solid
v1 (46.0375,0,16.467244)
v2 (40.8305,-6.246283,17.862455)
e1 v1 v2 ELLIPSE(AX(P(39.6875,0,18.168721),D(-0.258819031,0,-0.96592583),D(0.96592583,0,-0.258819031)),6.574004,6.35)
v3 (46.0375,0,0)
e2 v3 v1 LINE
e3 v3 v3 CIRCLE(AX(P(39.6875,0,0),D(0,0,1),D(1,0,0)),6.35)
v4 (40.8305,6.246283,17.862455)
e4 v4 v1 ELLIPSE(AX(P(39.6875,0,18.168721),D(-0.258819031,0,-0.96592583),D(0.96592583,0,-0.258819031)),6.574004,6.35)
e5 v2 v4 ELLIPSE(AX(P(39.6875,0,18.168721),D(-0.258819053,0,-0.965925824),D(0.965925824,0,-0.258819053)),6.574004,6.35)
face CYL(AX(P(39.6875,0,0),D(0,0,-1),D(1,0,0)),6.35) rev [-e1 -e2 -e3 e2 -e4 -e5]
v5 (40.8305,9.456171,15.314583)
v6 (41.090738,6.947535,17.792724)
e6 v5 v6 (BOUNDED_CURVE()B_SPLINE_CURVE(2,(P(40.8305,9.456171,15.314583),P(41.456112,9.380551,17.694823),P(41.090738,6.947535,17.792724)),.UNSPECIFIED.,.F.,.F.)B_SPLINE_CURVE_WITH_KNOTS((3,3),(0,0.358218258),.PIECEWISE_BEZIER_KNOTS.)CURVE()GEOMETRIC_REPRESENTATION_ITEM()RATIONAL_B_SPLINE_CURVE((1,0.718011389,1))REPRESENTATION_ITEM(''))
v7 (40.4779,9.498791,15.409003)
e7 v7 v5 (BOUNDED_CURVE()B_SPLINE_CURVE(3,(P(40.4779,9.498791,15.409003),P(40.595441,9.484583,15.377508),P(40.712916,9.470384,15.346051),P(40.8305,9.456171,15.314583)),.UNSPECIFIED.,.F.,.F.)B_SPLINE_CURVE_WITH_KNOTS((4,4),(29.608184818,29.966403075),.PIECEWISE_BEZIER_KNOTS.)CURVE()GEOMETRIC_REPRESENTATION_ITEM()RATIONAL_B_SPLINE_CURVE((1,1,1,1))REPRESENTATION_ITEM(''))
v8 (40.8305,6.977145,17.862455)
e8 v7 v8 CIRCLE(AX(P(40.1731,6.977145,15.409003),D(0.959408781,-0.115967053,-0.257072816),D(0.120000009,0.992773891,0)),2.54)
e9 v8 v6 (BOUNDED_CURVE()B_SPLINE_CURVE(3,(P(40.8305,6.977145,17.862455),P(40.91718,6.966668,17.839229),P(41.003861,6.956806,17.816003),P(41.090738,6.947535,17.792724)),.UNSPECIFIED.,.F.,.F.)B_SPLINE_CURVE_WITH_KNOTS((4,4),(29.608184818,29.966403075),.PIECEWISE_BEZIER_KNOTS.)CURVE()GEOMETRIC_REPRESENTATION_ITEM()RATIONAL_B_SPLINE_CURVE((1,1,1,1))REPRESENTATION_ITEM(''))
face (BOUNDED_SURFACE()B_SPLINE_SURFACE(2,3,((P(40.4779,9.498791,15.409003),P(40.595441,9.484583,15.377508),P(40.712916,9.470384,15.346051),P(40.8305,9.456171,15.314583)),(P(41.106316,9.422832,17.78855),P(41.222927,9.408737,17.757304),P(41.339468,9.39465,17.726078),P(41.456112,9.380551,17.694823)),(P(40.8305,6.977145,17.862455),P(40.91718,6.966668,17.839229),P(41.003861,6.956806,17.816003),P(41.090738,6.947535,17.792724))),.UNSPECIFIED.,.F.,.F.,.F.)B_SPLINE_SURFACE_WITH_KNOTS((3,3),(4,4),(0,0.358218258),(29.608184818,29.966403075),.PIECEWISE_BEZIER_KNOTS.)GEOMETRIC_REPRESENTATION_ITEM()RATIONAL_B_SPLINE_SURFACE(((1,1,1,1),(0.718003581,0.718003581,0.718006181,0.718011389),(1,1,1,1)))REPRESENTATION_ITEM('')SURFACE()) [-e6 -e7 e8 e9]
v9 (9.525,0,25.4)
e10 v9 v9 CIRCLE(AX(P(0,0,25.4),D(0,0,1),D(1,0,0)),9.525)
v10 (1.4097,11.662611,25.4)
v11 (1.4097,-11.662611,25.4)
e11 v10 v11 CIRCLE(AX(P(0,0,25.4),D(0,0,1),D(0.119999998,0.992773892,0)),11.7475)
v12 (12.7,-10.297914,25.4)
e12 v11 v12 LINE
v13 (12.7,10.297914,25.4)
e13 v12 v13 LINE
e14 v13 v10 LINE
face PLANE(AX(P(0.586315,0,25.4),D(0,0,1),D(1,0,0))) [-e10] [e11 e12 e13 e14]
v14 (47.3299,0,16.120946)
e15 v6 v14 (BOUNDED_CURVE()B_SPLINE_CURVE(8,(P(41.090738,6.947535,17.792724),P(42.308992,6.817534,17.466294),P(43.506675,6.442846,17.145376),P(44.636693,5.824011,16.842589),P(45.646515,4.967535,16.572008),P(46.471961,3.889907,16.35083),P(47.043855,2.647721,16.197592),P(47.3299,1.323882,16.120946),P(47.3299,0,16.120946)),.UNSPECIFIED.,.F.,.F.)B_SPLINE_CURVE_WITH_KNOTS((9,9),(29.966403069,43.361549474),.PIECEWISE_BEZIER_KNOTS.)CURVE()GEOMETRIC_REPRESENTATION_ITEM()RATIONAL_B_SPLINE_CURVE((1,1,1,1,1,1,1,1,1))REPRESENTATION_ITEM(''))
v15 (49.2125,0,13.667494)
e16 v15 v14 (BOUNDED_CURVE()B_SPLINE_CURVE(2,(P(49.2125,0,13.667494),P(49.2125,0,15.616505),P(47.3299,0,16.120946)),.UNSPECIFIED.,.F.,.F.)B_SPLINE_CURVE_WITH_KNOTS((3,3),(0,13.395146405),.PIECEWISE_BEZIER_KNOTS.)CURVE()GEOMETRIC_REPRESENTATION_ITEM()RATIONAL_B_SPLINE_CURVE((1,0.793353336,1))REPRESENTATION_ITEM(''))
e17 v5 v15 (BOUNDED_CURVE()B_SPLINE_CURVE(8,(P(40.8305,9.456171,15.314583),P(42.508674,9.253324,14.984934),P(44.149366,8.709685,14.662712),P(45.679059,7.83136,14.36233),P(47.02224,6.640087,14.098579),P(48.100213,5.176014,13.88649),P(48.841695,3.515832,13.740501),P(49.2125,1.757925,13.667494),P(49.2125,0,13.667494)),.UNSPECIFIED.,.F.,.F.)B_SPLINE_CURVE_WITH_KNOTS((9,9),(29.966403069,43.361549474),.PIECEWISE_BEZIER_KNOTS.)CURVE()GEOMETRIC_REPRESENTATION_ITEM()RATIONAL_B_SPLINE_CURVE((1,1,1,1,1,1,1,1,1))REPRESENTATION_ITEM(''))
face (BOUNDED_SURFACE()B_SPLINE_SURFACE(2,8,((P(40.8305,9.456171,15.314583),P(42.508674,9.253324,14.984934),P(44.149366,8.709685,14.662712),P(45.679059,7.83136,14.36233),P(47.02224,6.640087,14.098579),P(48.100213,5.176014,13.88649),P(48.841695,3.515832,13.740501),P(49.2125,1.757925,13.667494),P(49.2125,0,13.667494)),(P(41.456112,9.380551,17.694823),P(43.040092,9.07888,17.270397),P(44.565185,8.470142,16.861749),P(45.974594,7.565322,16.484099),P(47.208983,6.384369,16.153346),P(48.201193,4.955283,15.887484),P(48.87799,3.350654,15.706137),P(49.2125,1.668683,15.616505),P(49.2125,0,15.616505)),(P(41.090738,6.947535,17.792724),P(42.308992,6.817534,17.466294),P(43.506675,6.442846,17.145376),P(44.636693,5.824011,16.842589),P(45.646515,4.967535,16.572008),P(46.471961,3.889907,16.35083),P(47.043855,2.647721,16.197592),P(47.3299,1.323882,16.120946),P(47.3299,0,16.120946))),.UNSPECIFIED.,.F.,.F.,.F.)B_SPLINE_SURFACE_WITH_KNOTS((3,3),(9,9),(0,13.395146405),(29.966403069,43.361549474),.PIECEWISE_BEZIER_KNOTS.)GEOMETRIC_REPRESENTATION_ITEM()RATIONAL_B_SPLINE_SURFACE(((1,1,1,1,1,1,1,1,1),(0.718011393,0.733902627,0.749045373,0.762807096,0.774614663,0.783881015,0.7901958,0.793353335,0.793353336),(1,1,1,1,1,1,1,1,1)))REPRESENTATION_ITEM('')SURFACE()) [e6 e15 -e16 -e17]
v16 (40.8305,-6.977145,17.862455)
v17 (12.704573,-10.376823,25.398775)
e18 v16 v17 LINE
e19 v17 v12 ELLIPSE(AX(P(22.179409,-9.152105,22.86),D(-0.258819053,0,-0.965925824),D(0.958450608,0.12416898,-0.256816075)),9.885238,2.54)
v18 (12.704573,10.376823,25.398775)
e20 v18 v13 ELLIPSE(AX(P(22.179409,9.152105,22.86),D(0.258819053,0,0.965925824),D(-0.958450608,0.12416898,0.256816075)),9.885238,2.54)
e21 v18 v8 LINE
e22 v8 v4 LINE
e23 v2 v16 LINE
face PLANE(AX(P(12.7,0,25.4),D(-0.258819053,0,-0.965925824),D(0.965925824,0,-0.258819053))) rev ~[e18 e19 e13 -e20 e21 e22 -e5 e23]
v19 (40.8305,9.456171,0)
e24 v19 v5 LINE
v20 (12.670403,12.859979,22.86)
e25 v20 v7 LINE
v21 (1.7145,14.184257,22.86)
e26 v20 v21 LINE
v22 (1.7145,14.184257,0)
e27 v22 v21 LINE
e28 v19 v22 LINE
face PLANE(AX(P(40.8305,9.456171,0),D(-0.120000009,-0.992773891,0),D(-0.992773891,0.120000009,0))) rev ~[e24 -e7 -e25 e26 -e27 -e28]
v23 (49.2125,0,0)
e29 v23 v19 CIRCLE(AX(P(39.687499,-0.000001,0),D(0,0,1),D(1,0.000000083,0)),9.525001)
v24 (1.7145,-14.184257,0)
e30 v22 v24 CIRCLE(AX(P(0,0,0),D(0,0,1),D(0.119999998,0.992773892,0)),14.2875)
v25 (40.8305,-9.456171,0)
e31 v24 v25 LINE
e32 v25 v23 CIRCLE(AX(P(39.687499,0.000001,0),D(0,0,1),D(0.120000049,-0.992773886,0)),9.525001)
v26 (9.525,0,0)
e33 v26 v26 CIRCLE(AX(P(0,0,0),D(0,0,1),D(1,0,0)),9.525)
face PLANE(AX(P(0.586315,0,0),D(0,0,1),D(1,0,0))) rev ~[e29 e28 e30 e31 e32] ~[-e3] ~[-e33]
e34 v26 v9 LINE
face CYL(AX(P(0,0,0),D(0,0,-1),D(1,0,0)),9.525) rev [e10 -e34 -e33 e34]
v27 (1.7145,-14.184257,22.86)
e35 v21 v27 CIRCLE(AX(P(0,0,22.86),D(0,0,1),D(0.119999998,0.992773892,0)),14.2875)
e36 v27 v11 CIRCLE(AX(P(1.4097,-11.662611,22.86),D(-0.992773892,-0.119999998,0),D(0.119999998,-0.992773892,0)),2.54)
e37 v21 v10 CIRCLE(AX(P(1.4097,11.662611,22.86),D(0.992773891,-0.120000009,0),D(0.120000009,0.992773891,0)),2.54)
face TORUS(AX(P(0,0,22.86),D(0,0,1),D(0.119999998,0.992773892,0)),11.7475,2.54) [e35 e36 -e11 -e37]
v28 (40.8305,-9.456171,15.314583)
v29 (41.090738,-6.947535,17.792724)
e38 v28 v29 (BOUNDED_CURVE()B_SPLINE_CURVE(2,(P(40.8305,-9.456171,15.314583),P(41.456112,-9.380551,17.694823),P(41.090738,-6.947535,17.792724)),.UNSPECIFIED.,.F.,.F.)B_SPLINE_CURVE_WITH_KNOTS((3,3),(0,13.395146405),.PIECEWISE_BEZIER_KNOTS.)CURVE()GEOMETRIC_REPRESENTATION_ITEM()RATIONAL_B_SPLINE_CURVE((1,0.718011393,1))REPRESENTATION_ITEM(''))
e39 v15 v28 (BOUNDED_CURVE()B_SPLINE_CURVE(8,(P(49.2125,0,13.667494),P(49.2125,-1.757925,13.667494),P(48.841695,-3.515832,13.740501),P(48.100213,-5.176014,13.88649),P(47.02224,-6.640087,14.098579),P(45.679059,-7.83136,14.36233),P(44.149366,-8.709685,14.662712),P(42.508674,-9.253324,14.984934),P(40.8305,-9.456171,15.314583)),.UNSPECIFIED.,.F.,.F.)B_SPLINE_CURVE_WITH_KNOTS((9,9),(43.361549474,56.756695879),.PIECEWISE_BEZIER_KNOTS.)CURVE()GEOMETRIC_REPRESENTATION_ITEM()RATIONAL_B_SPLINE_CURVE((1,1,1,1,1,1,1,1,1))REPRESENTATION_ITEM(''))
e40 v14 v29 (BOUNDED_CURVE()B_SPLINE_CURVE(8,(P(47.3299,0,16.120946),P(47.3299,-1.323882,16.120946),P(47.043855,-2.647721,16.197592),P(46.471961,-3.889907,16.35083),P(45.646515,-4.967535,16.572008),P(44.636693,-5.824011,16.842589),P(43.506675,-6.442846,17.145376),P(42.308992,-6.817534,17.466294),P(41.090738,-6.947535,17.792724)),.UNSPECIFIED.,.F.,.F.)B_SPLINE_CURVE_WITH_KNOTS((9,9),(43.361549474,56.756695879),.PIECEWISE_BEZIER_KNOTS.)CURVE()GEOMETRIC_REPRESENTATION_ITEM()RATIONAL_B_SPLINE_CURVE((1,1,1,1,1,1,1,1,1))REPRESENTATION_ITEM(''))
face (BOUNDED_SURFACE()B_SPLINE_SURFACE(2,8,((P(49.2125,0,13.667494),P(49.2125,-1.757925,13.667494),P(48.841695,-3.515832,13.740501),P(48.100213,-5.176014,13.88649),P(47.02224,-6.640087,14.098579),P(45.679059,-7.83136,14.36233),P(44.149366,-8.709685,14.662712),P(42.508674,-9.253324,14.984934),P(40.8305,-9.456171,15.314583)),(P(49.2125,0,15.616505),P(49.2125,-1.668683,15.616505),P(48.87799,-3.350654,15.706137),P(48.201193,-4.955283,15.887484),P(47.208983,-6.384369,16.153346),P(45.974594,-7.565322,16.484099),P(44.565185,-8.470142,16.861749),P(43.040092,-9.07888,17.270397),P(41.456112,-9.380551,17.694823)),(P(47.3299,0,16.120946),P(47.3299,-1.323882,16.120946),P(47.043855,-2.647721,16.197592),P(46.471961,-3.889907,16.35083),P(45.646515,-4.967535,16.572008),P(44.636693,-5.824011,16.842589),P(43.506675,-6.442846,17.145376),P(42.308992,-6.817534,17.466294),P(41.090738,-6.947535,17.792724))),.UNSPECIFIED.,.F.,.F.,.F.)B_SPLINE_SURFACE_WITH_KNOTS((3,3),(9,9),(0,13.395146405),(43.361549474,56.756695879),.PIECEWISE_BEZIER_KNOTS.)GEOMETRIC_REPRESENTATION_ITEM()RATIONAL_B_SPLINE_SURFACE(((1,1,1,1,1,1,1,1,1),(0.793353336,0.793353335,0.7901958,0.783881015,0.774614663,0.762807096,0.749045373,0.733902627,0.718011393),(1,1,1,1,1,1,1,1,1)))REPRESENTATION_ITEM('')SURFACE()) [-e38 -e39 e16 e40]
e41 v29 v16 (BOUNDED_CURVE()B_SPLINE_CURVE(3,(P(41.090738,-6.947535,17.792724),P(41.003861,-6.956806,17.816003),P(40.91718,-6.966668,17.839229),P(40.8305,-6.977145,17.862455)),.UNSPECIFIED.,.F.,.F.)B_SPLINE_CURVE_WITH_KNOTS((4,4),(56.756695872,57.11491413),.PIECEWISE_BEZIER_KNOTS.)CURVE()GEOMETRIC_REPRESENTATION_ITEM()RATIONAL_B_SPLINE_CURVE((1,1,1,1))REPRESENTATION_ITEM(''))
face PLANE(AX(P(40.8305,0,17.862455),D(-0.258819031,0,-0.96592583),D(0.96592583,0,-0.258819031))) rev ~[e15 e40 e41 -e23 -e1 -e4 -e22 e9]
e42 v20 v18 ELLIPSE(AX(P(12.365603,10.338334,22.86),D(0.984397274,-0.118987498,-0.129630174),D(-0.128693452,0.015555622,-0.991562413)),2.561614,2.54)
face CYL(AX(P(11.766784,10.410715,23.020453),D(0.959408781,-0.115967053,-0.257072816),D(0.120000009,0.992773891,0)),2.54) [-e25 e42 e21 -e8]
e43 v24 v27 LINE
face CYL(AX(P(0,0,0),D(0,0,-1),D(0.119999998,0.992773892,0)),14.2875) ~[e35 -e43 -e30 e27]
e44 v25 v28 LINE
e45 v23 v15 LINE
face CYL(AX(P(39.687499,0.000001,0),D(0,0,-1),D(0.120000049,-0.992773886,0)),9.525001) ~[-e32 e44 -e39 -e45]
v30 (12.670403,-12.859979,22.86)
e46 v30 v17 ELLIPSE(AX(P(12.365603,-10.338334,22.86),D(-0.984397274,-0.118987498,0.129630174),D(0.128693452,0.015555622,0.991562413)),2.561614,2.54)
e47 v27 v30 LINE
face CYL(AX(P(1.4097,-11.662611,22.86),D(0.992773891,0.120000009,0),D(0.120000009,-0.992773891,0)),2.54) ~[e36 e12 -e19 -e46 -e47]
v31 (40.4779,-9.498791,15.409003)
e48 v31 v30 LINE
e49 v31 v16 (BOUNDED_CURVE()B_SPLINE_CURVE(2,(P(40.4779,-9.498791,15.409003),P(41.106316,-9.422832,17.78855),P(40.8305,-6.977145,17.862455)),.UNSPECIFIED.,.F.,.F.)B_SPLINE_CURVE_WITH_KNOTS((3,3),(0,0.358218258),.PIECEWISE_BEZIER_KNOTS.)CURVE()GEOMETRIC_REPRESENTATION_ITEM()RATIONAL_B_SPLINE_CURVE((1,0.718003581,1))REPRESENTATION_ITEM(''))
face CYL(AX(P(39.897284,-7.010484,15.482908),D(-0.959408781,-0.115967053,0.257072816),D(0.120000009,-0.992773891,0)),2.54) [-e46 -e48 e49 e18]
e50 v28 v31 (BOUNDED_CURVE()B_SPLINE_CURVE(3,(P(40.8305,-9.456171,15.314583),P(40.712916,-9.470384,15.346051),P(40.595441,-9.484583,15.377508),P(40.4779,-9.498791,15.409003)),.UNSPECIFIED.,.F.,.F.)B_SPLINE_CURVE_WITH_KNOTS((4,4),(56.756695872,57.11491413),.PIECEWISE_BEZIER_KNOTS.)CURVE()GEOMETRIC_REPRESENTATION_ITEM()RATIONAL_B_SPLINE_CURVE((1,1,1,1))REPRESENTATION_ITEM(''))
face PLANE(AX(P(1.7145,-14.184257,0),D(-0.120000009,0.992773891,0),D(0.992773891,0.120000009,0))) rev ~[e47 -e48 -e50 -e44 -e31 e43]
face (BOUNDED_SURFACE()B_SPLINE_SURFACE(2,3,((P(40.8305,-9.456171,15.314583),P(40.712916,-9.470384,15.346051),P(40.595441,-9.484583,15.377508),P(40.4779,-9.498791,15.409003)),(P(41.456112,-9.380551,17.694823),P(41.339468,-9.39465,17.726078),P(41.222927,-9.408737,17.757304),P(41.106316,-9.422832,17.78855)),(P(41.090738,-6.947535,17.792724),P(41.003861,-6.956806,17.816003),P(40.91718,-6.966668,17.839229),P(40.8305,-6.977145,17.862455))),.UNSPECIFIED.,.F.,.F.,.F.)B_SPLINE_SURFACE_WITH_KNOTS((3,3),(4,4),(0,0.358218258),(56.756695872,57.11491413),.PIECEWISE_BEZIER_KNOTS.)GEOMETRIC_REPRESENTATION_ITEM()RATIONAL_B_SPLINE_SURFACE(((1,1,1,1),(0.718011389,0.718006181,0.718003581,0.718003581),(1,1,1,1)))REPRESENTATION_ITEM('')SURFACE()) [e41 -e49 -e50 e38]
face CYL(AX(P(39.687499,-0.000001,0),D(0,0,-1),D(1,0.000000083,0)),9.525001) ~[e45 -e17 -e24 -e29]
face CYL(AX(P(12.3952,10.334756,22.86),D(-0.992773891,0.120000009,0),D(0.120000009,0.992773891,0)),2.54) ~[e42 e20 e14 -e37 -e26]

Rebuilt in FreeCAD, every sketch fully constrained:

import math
import FreeCAD as App
import Part
import Sketcher
Q = App.Units.Quantity


def edges_at(feature, points):
    """Names of the edges that pass closest to the given points."""
    edges = feature.Shape.Edges
    near = lambda p: min(range(len(edges)), key=lambda i: edges[i].distToShape(Part.Vertex(*p))[0])
    return sorted({f"Edge{near(p) + 1}" for p in points})


def add_polygon(sketch, points):
    """Adds a closed chain of lines whose ends are joined by coincident constraints."""
    first, n = sketch.GeometryCount, len(points)
    for a, b in zip(points, points[1:] + points[:1]):
        sketch.addGeometry(Part.LineSegment(App.Vector(*a, 0), App.Vector(*b, 0)), False)
    for i in range(n):
        sketch.addConstraint(Sketcher.Constraint("Coincident", first + i, 2, first + (i + 1) % n, 1))

doc = App.newDocument("Part")
body = doc.addObject("PartDesign::Body", "Body")

# Sketch on XY plane
sketch1 = body.newObject("Sketcher::SketchObject", "Sketch")
sketch1.AttachmentSupport = (doc.getObject("XY_Plane"), [""])
sketch1.MapMode = "FlatFace"
sketch1.addGeometry([
    Part.ArcOfCircle(Part.Circle(App.Vector(0, 0, 0), App.Vector(0, 0, 1), 14), math.radians(83), math.radians(277)),  # 0
    Part.LineSegment(App.Vector(2, -14, 0), App.Vector(41, -9, 0)),  # 1
    Part.ArcOfCircle(Part.Circle(App.Vector(40, 0, 0), App.Vector(0, 0, 1), 10), math.radians(-83), math.radians(0)),  # 2
    Part.ArcOfCircle(Part.Circle(App.Vector(40, 0, 0), App.Vector(0, 0, 1), 10), math.radians(0), math.radians(83)),  # 3
    Part.LineSegment(App.Vector(41, 9, 0), App.Vector(2, 14, 0)),  # 4
    Part.Circle(App.Vector(0, 0, 0), App.Vector(0, 0, 1), 10),  # 5
    Part.Circle(App.Vector(40, 0, 0), App.Vector(0, 0, 1), 6),  # 6
], False)
sketch1.addConstraint([
    Sketcher.Constraint("Tangent", 0, 2, 1, 1),
    Sketcher.Constraint("Tangent", 1, 2, 2, 1),
    Sketcher.Constraint("Tangent", 2, 2, 3, 1),
    Sketcher.Constraint("Tangent", 3, 2, 4, 1),
    Sketcher.Constraint("Tangent", 4, 2, 0, 1),
    Sketcher.Constraint("Coincident", 0, 3, -1, 1),
    Sketcher.Constraint("Coincident", 5, 3, -1, 1),
    Sketcher.Constraint("Coincident", 6, 3, 2, 3),
    Sketcher.Constraint("Equal", 2, 3),
    Sketcher.Constraint("Equal", 3, 5),
    Sketcher.Constraint("PointOnObject", 2, 3, -1),
    Sketcher.Constraint("PointOnObject", 2, 2, -1),
    Sketcher.Constraint("Diameter", 6, Q("0.5 in")),
    Sketcher.Constraint("Diameter", 5, Q("0.75 in")),
    Sketcher.Constraint("Radius", 0, Q("0.5625 in")),
    Sketcher.Constraint("DistanceX", 0, 2, 1, 2, Q("1.54 in")),
])
pad1 = body.newObject("PartDesign::Pad", "Pad")
pad1.Profile = sketch1
pad1.Length = Q("1 in")

# Sketch on XZ plane
sketch2 = body.newObject("Sketcher::SketchObject", "Sketch001")
sketch2.AttachmentSupport = (doc.getObject("XZ_Plane"), [""])
sketch2.MapMode = "FlatFace"
add_polygon(sketch2, [(13, 25), (41, 18), (49, 16), (49, 25)])  # lines 0-3
sketch2.addConstraint([
    Sketcher.Constraint("Vertical", 2),
    Sketcher.Constraint("Horizontal", 3),
    Sketcher.Constraint("Parallel", 0, 1),
    Sketcher.Constraint("DistanceY", -1, 1, 2, 2, Q("1 in")),
    Sketcher.Constraint("Angle", 0, Q("-15 deg")),
    Sketcher.Constraint("DistanceX", -1, 1, 3, 2, Q("0.5 in")),
    Sketcher.Constraint("DistanceX", 3, 2, 3, 1, Q("1.4375 in")),
    Sketcher.Constraint("DistanceX", 0, 2, 1, 2, Q("0.33 in")),
])
pocket1 = body.newObject("PartDesign::Pocket", "Pocket")
pocket1.Profile = sketch2
pocket1.Length = Q("1.2 in")
pocket1.Midplane = True
doc.recompute()

fillet = body.newObject("PartDesign::Fillet", "Fillet")
fillet.Base = (pocket1, edges_at(pocket1, [(26.765, -11.156, 21.631), (-14.287, 0, 25.4)]))
fillet.Radius = Q("0.1 in")

doc.recompute()
